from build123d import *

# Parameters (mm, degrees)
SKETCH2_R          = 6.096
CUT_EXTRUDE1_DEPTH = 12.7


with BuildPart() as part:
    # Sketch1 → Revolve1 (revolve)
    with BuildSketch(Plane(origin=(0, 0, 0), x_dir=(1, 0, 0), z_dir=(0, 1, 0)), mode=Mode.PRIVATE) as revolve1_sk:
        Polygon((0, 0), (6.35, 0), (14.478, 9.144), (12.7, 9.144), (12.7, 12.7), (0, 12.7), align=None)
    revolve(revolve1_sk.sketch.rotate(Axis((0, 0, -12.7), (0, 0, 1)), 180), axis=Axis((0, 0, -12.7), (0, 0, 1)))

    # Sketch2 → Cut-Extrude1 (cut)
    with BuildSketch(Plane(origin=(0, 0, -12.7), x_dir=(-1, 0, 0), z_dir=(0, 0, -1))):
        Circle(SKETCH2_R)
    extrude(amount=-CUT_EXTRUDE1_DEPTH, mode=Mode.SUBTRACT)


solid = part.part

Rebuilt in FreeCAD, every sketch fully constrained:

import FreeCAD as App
import Part
import Sketcher
Q = App.Units.Quantity


def add_polygon(sketch, points):
    """Adds a closed chain of lines whose ends are joined by coincident constraints."""
    first, n = sketch.GeometryCount, len(points)
    for a, b in zip(points, points[1:] + points[:1]):
        sketch.addGeometry(Part.LineSegment(App.Vector(*a, 0), App.Vector(*b, 0)), False)
    for i in range(n):
        sketch.addConstraint(Sketcher.Constraint("Coincident", first + i, 2, first + (i + 1) % n, 1))

doc = App.newDocument("Part")
body = doc.addObject("PartDesign::Body", "Body")

sketch1 = doc.addObject("Sketcher::SketchObject", "Sketch")
body.addObject(sketch1)
sketch1.AttachmentSupport = (doc.XZ_Plane, [""])
sketch1.MapMode = "FlatFace"
add_polygon(sketch1, [(0, 0), (6.35, 0), (14.478, -9.144), (12.7, -9.144), (12.7, -12.7), (0, -12.7)])
sketch1.addConstraint([
    Sketcher.Constraint("Horizontal", 0),
    Sketcher.Constraint("Horizontal", 2),
    Sketcher.Constraint("Vertical", 3),
    Sketcher.Constraint("Horizontal", 4),
    Sketcher.Constraint("Vertical", 5),
    Sketcher.Constraint("Coincident", 5, 2, -1, 1),
    Sketcher.Constraint("Equal", 4, 5),
    Sketcher.Constraint("DistanceX", 4, 2, 4, 1, Q("0.5 in")),
    Sketcher.Constraint("DistanceX", 0, 1, 0, 2, Q("0.25 in")),
    Sketcher.Constraint("DistanceX", 2, 2, 2, 1, Q("0.07 in")),
    Sketcher.Constraint("DistanceY", 3, 2, 3, 1, Q("0.14 in")),
])
revolution = doc.addObject("PartDesign::Revolution", "Revolution")
body.addObject(revolution)
revolution.Profile = sketch1
revolution.ReferenceAxis = (sketch1, ["V_Axis"])
revolution.Angle = 360

sketch2 = doc.addObject("Sketcher::SketchObject", "Sketch001")
body.addObject(sketch2)
sketch2.AttachmentSupport = (doc.XY_Plane, [""])
sketch2.MapMode = "FlatFace"
sketch2.AttachmentOffset = App.Placement(App.Vector(0, 0, -0.5 * 25.4), App.Rotation())
sketch2.addGeometry(Part.Circle(App.Vector(0, 0, 0), App.Vector(0, 0, 1), 6.096), False)
sketch2.addConstraint([
    Sketcher.Constraint("Coincident", 0, 3, -1, 1),
    Sketcher.Constraint("Diameter", 0, Q("0.48 in")),
])
pocket1 = doc.addObject("PartDesign::Pocket", "Pocket")
body.addObject(pocket1)
pocket1.Profile = sketch2
pocket1.Length = Q("0.5 in")
pocket1.Reversed = True

doc.recompute()
